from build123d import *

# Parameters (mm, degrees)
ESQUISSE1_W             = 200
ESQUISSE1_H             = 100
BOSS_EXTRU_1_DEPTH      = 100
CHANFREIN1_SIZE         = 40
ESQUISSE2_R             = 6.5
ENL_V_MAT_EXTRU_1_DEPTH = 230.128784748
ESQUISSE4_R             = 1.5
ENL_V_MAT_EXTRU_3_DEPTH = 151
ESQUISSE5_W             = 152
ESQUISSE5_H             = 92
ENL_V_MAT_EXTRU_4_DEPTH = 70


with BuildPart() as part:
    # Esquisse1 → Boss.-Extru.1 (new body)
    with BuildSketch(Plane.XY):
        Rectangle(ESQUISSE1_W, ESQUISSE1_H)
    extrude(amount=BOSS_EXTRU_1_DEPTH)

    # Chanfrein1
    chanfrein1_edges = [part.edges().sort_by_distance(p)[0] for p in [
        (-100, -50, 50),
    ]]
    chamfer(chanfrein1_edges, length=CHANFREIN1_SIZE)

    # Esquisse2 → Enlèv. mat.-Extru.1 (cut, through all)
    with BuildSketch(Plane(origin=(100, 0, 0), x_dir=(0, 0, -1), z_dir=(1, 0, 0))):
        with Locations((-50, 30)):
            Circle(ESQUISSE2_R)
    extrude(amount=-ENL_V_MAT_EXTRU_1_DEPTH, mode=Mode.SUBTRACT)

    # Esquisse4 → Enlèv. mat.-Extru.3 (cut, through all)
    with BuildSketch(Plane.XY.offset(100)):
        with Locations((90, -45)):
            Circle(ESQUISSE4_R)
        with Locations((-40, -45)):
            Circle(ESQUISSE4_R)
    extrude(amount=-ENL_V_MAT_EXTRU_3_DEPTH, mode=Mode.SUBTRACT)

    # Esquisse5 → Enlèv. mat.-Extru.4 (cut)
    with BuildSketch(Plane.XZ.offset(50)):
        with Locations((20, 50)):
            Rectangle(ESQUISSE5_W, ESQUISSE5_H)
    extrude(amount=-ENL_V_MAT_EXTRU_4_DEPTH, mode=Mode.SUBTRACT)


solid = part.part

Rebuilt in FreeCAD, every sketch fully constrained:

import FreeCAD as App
import Part
import Sketcher


def edges_at(feature, points):
    """Names of the edges that pass closest to the given points."""
    edges = feature.Shape.Edges
    near = lambda p: min(range(len(edges)), key=lambda i: edges[i].distToShape(Part.Vertex(*p))[0])
    return sorted({f"Edge{near(p) + 1}" for p in points})


def add_polygon(sketch, points):
    """Adds a closed chain of lines whose ends are joined by coincident constraints."""
    first, n = sketch.GeometryCount, len(points)
    for a, b in zip(points, points[1:] + points[:1]):
        sketch.addGeometry(Part.LineSegment(App.Vector(*a, 0), App.Vector(*b, 0)), False)
    for i in range(n):
        sketch.addConstraint(Sketcher.Constraint("Coincident", first + i, 2, first + (i + 1) % n, 1))

doc = App.newDocument("Part")
body = doc.addObject("PartDesign::Body", "Body")

# Sketch on XY plane
sketch1 = body.newObject("Sketcher::SketchObject", "Sketch")
sketch1.AttachmentSupport = (doc.getObject("XY_Plane"), [""])
sketch1.MapMode = "FlatFace"
add_polygon(sketch1, [(-100, 50), (-100, -50), (100, -50), (100, 50)])  # lines 0-3
sketch1.addConstraint(Sketcher.Constraint("Vertical", 0))
sketch1.addConstraint(Sketcher.Constraint("Horizontal", 1))
sketch1.addConstraint(Sketcher.Constraint("Vertical", 2))
sketch1.addConstraint(Sketcher.Constraint("Horizontal", 3))
sketch1.addConstraint(Sketcher.Constraint("Symmetric", 0, 2, 2, 2, -1, 1))
sketch1.addConstraint(Sketcher.Constraint("DistanceX", 1, 1, 1, 2, 200.0))
sketch1.addConstraint(Sketcher.Constraint("DistanceY", 0, 2, 0, 1, 100.0))
pad1 = body.newObject("PartDesign::Pad", "Pad")
pad1.Profile = sketch1
pad1.Length = 100
doc.recompute()

chamfer = body.newObject("PartDesign::Chamfer", "Chamfer")
chamfer.Base = (pad1, edges_at(pad1, [(-100, -50, 50)]))
chamfer.Size = 40

# Sketch on YZ plane
sketch2 = body.newObject("Sketcher::SketchObject", "Sketch001")
sketch2.AttachmentSupport = (doc.getObject("YZ_Plane"), [""])
sketch2.MapMode = "FlatFace"
sketch2.AttachmentOffset = App.Placement(App.Vector(0, 0, 100), App.Rotation())
sketch2.addGeometry(Part.Circle(App.Vector(30, 50, 0), App.Vector(0, 0, 1), 6.5), False)
sketch2.addConstraint(Sketcher.Constraint("Diameter", 0, 13.0))
sketch2.addConstraint(Sketcher.Constraint("DistanceX", -1, 1, 0, 3, 30.0))
sketch2.addConstraint(Sketcher.Constraint("DistanceY", -1, 1, 0, 3, 50.0))
pocket1 = body.newObject("PartDesign::Pocket", "Pocket")
pocket1.Profile = sketch2
pocket1.Type = "ThroughAll"

# Sketch on XY plane
sketch3 = body.newObject("Sketcher::SketchObject", "Sketch002")
sketch3.AttachmentSupport = (doc.getObject("XY_Plane"), [""])
sketch3.MapMode = "FlatFace"
sketch3.AttachmentOffset = App.Placement(App.Vector(0, 0, 100), App.Rotation())
sketch3.addGeometry(Part.Circle(App.Vector(90, -45, 0), App.Vector(0, 0, 1), 1.5), False)
sketch3.addGeometry(Part.Circle(App.Vector(-40, -45, 0), App.Vector(0, 0, 1), 1.5), False)
sketch3.addConstraint(Sketcher.Constraint("Equal", 0, 1))
sketch3.addConstraint(Sketcher.Constraint("Horizontal", 0, 3, 1, 3))
sketch3.addConstraint(Sketcher.Constraint("Diameter", 0, 3.0))
sketch3.addConstraint(Sketcher.Constraint("DistanceX", -1, 1, 0, 3, 90.0))
sketch3.addConstraint(Sketcher.Constraint("DistanceY", 0, 3, -1, 1, 45.0))
sketch3.addConstraint(Sketcher.Constraint("DistanceX", 1, 3, -1, 1, 40.0))
pocket2 = body.newObject("PartDesign::Pocket", "Pocket001")
pocket2.Profile = sketch3
pocket2.Type = "ThroughAll"

# Sketch on XZ plane
sketch4 = body.newObject("Sketcher::SketchObject", "Sketch003")
sketch4.AttachmentSupport = (doc.getObject("XZ_Plane"), [""])
sketch4.MapMode = "FlatFace"
sketch4.AttachmentOffset = App.Placement(App.Vector(0, 0, 50), App.Rotation())
add_polygon(sketch4, [(-56, 96), (-56, 4), (96, 4), (96, 96)])  # lines 0-3
sketch4.addConstraint(Sketcher.Constraint("Vertical", 0))
sketch4.addConstraint(Sketcher.Constraint("Horizontal", 1))
sketch4.addConstraint(Sketcher.Constraint("Vertical", 2))
sketch4.addConstraint(Sketcher.Constraint("Horizontal", 3))
sketch4.addConstraint(Sketcher.Constraint("DistanceX", 1, 1, 1, 2, 152.0))
sketch4.addConstraint(Sketcher.Constraint("DistanceY", 0, 2, 0, 1, 92.0))
sketch4.addConstraint(Sketcher.Constraint("DistanceX", 0, 2, -1, 1, 56.0))
sketch4.addConstraint(Sketcher.Constraint("DistanceY", -1, 1, 0, 2, 4.0))
pocket3 = body.newObject("PartDesign::Pocket", "Pocket002")
pocket3.Profile = sketch4
pocket3.Length = 70

doc.recompute()
